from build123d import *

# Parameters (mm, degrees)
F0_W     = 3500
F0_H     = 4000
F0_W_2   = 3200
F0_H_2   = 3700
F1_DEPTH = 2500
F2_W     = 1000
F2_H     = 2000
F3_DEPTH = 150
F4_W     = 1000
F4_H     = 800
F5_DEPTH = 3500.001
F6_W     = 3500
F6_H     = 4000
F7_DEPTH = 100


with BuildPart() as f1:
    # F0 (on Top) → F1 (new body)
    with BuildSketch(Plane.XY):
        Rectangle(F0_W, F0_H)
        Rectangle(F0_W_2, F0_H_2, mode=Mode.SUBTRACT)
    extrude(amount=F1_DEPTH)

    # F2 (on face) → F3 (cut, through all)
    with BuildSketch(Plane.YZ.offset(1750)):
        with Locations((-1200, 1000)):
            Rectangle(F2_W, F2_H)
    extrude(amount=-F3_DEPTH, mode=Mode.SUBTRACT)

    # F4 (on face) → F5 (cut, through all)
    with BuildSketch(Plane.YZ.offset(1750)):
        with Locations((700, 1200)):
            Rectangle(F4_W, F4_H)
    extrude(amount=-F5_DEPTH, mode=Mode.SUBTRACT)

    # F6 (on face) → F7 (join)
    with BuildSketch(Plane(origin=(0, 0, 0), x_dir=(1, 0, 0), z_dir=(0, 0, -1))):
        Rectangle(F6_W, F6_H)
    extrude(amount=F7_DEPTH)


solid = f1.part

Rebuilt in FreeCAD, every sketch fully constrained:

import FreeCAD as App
import Part
import Sketcher
from FreeCAD import Vector

doc = App.newDocument("Part")
body = doc.addObject("PartDesign::Body", "Body")

sketch1 = doc.addObject("Sketcher::SketchObject", "Sketch")
body.addObject(sketch1)
sketch1.AttachmentSupport = (doc.XY_Plane, [""])
sketch1.MapMode = "FlatFace"
sketch1.addGeometry([
    Part.LineSegment(Vector(-1750, 2000, 0), Vector(-1750, -2000, 0)),
    Part.LineSegment(Vector(-1750, -2000, 0), Vector(1750, -2000, 0)),
    Part.LineSegment(Vector(1750, -2000, 0), Vector(1750, 2000, 0)),
    Part.LineSegment(Vector(1750, 2000, 0), Vector(-1750, 2000, 0)),
    Part.LineSegment(Vector(1600, -1850, 0), Vector(-1600, -1850, 0)),
    Part.LineSegment(Vector(-1600, -1850, 0), Vector(-1600, 1850, 0)),
    Part.LineSegment(Vector(-1600, 1850, 0), Vector(1600, 1850, 0)),
    Part.LineSegment(Vector(1600, 1850, 0), Vector(1600, -1850, 0)),
], False)
sketch1.addConstraint([
    Sketcher.Constraint("Coincident", 0, 2, 1, 1),
    Sketcher.Constraint("Coincident", 1, 2, 2, 1),
    Sketcher.Constraint("Coincident", 2, 2, 3, 1),
    Sketcher.Constraint("Coincident", 3, 2, 0, 1),
    Sketcher.Constraint("Coincident", 4, 2, 5, 1),
    Sketcher.Constraint("Coincident", 5, 2, 6, 1),
    Sketcher.Constraint("Coincident", 6, 2, 7, 1),
    Sketcher.Constraint("Coincident", 7, 2, 4, 1),
    Sketcher.Constraint("Vertical", 0),
    Sketcher.Constraint("Horizontal", 1),
    Sketcher.Constraint("Vertical", 2),
    Sketcher.Constraint("Horizontal", 3),
    Sketcher.Constraint("Horizontal", 4),
    Sketcher.Constraint("Vertical", 5),
    Sketcher.Constraint("Horizontal", 6),
    Sketcher.Constraint("Vertical", 7),
    Sketcher.Constraint("Symmetric", 0, 2, 2, 2, -1, 1),
    Sketcher.Constraint("Symmetric", 4, 2, 6, 2, -1, 1),
    Sketcher.Constraint("DistanceX", 1, 1, 1, 2, 3500.0),
    Sketcher.Constraint("DistanceX", 4, 2, 4, 1, 3200.0),
    Sketcher.Constraint("DistanceY", 0, 2, 0, 1, 4000.0),
    Sketcher.Constraint("DistanceY", 5, 1, 5, 2, 3700.0),
])
pad1 = doc.addObject("PartDesign::Pad", "Pad")
body.addObject(pad1)
pad1.Profile = sketch1
pad1.Length = 2500

sketch2 = doc.addObject("Sketcher::SketchObject", "Sketch001")
body.addObject(sketch2)
sketch2.AttachmentSupport = (doc.YZ_Plane, [""])
sketch2.MapMode = "FlatFace"
sketch2.AttachmentOffset = App.Placement(Vector(0, 0, 1750), App.Rotation())
sketch2.addGeometry([
    Part.LineSegment(Vector(-1700, 2000, 0), Vector(-1700, 0, 0)),
    Part.LineSegment(Vector(-1700, 0, 0), Vector(-700, 0, 0)),
    Part.LineSegment(Vector(-700, 0, 0), Vector(-700, 2000, 0)),
    Part.LineSegment(Vector(-700, 2000, 0), Vector(-1700, 2000, 0)),
], False)
sketch2.addConstraint([
    Sketcher.Constraint("Coincident", 0, 2, 1, 1),
    Sketcher.Constraint("Coincident", 1, 2, 2, 1),
    Sketcher.Constraint("Coincident", 2, 2, 3, 1),
    Sketcher.Constraint("Coincident", 3, 2, 0, 1),
    Sketcher.Constraint("Vertical", 0),
    Sketcher.Constraint("Horizontal", 1),
    Sketcher.Constraint("Vertical", 2),
    Sketcher.Constraint("Horizontal", 3),
    Sketcher.Constraint("PointOnObject", 0, 2, -1),
    Sketcher.Constraint("DistanceX", 1, 1, 1, 2, 1000.0),
    Sketcher.Constraint("DistanceY", 0, 2, 0, 1, 2000.0),
    Sketcher.Constraint("DistanceX", 0, 2, -1, 1, 1700.0),
])
pocket1 = doc.addObject("PartDesign::Pocket", "Pocket")
body.addObject(pocket1)
pocket1.Profile = sketch2
pocket1.Length = 150

sketch3 = doc.addObject("Sketcher::SketchObject", "Sketch002")
body.addObject(sketch3)
sketch3.AttachmentSupport = (doc.YZ_Plane, [""])
sketch3.MapMode = "FlatFace"
sketch3.AttachmentOffset = App.Placement(Vector(0, 0, 1750), App.Rotation())
sketch3.addGeometry([
    Part.LineSegment(Vector(200, 1600, 0), Vector(200, 800, 0)),
    Part.LineSegment(Vector(200, 800, 0), Vector(1200, 800, 0)),
    Part.LineSegment(Vector(1200, 800, 0), Vector(1200, 1600, 0)),
    Part.LineSegment(Vector(1200, 1600, 0), Vector(200, 1600, 0)),
], False)
sketch3.addConstraint([
    Sketcher.Constraint("Coincident", 0, 2, 1, 1),
    Sketcher.Constraint("Coincident", 1, 2, 2, 1),
    Sketcher.Constraint("Coincident", 2, 2, 3, 1),
    Sketcher.Constraint("Coincident", 3, 2, 0, 1),
    Sketcher.Constraint("Vertical", 0),
    Sketcher.Constraint("Horizontal", 1),
    Sketcher.Constraint("Vertical", 2),
    Sketcher.Constraint("Horizontal", 3),
    Sketcher.Constraint("DistanceX", 1, 1, 1, 2, 1000.0),
    Sketcher.Constraint("DistanceY", 0, 2, 0, 1, 800.0),
    Sketcher.Constraint("DistanceX", -1, 1, 0, 2, 200.0),
    Sketcher.Constraint("DistanceY", -1, 1, 0, 2, 800.0),
])
pocket2 = doc.addObject("PartDesign::Pocket", "Pocket001")
body.addObject(pocket2)
pocket2.Profile = sketch3
pocket2.Type = "ThroughAll"

sketch4 = doc.addObject("Sketcher::SketchObject", "Sketch003")
body.addObject(sketch4)
sketch4.AttachmentSupport = (doc.XY_Plane, [""])
sketch4.MapMode = "FlatFace"
sketch4.addGeometry([
    Part.LineSegment(Vector(-1750, -2000, 0), Vector(-1750, 2000, 0)),
    Part.LineSegment(Vector(-1750, 2000, 0), Vector(1750, 2000, 0)),
    Part.LineSegment(Vector(1750, 2000, 0), Vector(1750, -2000, 0)),
    Part.LineSegment(Vector(1750, -2000, 0), Vector(-1750, -2000, 0)),
], False)
sketch4.addConstraint([
    Sketcher.Constraint("Coincident", 0, 2, 1, 1),
    Sketcher.Constraint("Coincident", 1, 2, 2, 1),
    Sketcher.Constraint("Coincident", 2, 2, 3, 1),
    Sketcher.Constraint("Coincident", 3, 2, 0, 1),
    Sketcher.Constraint("Vertical", 0),
    Sketcher.Constraint("Horizontal", 1),
    Sketcher.Constraint("Vertical", 2),
    Sketcher.Constraint("Horizontal", 3),
    Sketcher.Constraint("Symmetric", 0, 2, 2, 2, -1, 1),
    Sketcher.Constraint("DistanceX", 1, 1, 1, 2, 3500.0),
    Sketcher.Constraint("DistanceY", 0, 1, 0, 2, 4000.0),
])
pad2 = doc.addObject("PartDesign::Pad", "Pad001")
body.addObject(pad2)
pad2.Profile = sketch4
pad2.Length = 100
pad2.Reversed = True

doc.recompute()
